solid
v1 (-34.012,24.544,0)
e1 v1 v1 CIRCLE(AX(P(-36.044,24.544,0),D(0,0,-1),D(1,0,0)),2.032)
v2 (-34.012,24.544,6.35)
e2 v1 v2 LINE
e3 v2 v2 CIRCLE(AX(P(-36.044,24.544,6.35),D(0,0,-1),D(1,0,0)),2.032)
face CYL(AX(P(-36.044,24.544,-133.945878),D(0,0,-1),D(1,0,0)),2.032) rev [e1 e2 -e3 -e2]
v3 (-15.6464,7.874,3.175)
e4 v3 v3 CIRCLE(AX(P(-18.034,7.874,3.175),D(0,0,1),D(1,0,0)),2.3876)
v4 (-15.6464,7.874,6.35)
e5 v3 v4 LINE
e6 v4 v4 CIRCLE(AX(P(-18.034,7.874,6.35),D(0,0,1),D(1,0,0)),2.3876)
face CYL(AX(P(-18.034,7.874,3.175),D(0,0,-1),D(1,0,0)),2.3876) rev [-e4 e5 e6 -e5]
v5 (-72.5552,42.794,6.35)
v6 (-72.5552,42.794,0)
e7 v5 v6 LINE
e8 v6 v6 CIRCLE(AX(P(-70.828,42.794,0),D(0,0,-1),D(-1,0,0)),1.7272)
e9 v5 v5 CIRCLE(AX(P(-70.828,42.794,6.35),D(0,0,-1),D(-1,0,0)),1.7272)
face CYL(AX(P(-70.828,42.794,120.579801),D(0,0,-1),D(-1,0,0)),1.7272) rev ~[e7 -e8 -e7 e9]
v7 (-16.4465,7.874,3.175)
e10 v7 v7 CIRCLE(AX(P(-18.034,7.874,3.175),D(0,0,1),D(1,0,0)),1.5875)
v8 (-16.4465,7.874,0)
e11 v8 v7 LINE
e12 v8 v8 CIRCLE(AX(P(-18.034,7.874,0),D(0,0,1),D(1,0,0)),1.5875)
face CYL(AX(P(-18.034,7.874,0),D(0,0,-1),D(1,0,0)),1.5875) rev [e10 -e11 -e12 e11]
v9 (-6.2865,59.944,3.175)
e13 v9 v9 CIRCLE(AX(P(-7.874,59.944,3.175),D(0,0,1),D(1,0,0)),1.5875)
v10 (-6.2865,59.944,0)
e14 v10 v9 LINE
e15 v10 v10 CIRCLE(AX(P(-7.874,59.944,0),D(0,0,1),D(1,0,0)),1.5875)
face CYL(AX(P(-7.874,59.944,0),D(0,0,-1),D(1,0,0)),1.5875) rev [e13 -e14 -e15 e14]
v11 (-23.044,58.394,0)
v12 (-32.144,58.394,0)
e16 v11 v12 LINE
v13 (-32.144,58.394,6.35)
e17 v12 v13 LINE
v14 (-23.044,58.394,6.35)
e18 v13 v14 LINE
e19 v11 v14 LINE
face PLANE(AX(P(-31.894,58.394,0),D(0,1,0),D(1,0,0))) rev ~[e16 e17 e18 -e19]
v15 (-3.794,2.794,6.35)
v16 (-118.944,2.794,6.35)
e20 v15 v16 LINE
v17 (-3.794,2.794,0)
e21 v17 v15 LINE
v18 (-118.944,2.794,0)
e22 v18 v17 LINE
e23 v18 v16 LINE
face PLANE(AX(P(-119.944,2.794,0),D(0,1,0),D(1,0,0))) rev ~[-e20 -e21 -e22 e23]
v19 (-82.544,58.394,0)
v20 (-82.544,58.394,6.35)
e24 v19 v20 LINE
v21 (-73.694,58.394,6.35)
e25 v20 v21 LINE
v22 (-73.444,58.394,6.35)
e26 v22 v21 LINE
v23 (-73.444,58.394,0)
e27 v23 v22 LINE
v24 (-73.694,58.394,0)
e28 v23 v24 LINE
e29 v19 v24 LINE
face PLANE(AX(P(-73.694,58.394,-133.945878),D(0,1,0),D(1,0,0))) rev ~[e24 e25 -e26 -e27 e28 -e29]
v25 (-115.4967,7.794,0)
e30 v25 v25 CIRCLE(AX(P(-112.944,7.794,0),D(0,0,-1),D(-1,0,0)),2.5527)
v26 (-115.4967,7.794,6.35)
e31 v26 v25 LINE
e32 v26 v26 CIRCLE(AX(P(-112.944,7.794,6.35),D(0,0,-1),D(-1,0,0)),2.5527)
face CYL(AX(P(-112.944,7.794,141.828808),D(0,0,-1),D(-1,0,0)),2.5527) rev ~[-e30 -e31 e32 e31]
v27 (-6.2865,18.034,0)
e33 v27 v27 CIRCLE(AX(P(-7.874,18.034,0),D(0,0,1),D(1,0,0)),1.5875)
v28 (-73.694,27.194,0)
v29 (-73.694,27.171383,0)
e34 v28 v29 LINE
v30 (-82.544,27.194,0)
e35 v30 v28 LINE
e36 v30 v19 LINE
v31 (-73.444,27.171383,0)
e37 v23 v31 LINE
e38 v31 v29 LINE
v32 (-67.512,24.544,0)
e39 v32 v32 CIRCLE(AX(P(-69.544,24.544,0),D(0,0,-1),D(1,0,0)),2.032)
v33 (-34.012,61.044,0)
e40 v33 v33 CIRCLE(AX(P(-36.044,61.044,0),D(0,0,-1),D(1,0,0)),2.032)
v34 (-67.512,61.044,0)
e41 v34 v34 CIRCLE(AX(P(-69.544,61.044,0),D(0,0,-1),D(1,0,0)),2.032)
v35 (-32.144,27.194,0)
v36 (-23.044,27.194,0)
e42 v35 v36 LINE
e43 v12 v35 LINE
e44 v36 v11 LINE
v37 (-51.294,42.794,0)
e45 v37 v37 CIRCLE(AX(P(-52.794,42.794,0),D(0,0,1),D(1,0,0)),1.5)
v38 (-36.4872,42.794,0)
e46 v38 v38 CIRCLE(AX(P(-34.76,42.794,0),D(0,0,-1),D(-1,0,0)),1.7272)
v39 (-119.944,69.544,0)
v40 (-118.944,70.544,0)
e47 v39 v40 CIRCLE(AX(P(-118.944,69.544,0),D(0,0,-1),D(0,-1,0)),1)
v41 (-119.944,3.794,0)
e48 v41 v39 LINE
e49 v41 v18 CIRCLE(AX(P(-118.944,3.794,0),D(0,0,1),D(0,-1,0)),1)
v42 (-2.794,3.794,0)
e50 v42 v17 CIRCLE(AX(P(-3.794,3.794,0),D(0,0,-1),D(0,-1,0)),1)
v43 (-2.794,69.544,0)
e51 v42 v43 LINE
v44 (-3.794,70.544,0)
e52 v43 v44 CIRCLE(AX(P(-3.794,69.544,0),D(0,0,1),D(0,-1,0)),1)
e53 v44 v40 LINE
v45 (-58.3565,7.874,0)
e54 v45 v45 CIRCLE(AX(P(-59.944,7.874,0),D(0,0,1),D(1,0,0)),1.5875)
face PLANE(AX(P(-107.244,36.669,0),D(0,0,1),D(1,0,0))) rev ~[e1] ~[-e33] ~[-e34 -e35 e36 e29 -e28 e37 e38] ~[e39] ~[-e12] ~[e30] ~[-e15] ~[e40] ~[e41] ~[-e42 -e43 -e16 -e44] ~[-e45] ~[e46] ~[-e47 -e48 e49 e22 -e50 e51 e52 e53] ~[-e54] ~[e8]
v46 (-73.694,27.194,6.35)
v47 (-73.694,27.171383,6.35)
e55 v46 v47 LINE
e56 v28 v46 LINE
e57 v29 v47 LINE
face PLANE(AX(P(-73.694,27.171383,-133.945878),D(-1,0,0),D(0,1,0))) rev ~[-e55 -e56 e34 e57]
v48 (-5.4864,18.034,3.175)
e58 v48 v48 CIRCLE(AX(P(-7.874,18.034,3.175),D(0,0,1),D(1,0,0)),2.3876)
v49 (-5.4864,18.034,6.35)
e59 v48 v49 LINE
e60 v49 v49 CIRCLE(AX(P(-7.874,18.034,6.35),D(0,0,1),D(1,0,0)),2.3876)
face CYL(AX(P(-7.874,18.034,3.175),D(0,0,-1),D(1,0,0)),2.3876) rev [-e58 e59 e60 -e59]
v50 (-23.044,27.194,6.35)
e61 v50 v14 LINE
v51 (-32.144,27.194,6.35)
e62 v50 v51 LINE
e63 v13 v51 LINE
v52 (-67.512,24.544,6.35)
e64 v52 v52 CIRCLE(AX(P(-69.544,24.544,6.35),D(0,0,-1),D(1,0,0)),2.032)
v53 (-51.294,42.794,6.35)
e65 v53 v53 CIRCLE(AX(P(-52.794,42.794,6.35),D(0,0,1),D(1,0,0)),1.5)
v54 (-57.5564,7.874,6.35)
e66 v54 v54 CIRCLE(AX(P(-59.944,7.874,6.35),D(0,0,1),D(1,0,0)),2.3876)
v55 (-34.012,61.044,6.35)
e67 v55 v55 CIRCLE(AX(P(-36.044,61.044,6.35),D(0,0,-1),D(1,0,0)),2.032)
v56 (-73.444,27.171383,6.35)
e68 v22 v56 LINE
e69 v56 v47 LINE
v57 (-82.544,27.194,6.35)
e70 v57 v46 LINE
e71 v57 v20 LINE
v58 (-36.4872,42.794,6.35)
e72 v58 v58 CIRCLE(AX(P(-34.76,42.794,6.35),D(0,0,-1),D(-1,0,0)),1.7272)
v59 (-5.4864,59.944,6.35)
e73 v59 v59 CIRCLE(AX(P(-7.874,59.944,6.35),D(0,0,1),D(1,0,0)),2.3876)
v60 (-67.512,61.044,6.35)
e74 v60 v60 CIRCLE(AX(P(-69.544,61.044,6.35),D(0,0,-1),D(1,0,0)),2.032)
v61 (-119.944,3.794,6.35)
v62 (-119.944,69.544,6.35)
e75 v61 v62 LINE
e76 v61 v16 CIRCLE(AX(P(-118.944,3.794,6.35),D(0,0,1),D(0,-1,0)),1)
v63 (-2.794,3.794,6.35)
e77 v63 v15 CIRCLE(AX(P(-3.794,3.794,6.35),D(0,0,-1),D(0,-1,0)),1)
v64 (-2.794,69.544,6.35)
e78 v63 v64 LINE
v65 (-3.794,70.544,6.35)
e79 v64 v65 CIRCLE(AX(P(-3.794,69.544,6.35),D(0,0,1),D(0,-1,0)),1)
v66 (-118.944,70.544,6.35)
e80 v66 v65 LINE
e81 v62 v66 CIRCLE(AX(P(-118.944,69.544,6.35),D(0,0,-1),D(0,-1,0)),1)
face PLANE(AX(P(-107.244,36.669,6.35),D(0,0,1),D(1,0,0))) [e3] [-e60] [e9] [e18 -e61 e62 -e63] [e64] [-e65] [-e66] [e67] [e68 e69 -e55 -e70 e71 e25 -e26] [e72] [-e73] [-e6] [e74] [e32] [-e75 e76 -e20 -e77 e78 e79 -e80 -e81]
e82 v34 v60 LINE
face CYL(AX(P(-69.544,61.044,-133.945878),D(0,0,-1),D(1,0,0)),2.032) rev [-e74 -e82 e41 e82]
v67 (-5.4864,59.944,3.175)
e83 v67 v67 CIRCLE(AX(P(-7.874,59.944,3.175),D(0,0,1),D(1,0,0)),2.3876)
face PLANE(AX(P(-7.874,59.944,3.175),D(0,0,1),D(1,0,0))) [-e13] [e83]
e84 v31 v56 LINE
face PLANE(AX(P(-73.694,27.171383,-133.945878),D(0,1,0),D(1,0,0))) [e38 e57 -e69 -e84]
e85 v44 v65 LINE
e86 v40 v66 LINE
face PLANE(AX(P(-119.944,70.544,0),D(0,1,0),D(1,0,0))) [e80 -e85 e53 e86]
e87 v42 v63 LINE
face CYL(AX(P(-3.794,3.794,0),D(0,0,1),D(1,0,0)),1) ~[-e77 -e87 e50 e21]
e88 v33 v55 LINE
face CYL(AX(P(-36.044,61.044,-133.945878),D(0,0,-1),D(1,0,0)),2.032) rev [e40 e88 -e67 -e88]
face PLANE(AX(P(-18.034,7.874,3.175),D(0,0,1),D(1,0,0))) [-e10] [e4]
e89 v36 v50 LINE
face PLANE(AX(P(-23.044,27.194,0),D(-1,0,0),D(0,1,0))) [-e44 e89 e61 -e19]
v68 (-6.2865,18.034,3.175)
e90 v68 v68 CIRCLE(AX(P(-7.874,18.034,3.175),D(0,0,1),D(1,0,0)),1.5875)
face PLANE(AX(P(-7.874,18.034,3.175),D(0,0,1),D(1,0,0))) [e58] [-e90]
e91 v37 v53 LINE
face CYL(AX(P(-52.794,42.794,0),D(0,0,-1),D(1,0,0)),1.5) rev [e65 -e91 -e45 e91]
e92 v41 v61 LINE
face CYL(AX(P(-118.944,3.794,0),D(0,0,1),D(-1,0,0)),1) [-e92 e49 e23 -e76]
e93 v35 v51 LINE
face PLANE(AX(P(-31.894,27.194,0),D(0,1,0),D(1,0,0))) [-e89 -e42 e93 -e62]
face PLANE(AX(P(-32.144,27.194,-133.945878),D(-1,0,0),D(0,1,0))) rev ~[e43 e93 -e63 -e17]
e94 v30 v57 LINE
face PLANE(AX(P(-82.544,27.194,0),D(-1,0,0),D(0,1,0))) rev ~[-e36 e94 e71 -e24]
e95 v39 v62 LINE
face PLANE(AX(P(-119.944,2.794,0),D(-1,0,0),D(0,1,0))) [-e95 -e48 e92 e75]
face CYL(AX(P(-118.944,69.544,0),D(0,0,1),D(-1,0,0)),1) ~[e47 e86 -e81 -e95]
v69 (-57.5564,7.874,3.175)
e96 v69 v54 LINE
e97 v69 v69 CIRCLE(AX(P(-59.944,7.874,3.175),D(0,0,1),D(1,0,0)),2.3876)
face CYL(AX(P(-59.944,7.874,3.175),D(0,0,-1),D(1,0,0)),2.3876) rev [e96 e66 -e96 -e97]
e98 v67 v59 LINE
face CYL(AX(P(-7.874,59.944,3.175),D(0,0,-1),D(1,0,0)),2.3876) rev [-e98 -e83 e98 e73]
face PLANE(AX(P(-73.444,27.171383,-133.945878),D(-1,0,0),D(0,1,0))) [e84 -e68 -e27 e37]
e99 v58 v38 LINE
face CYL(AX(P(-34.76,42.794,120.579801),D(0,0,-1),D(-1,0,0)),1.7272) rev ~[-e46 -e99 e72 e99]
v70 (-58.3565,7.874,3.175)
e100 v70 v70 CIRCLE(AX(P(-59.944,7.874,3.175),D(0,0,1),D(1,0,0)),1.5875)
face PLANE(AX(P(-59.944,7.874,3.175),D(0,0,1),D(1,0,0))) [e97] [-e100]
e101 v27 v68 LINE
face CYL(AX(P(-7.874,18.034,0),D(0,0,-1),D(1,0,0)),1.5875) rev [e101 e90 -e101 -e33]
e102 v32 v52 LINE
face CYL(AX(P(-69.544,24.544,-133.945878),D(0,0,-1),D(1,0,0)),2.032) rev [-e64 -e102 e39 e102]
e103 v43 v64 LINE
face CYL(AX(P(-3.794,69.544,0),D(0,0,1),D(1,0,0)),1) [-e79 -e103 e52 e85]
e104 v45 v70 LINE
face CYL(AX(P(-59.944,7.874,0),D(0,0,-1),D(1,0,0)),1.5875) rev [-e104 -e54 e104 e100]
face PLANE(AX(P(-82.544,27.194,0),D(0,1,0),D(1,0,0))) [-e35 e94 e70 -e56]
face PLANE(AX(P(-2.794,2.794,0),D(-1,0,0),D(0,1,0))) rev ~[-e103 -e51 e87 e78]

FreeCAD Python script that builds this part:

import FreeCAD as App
import Part
import Sketcher

V = App.Vector
Q = App.Units.Quantity


def edges_at(feature, points):
    """Names of the edges that pass closest to the given points."""
    edges = feature.Shape.Edges
    near = lambda p: min(range(len(edges)), key=lambda i: edges[i].distToShape(Part.Vertex(*p))[0])
    return sorted({f"Edge{near(p) + 1}" for p in points})


def add_polygon(sketch, points):
    """Adds a closed chain of lines whose ends are joined by coincident constraints."""
    first, n = sketch.GeometryCount, len(points)
    for a, b in zip(points, points[1:] + points[:1]):
        sketch.addGeometry(Part.LineSegment(App.Vector(*a, 0), App.Vector(*b, 0)), False)
    for i in range(n):
        sketch.addConstraint(Sketcher.Constraint("Coincident", first + i, 2, first + (i + 1) % n, 1))

doc = App.newDocument("Part")
params = doc.addObject("Spreadsheet::Sheet", "Params")
for row, (alias, value) in enumerate([
    ("sketch1_diameter", "0.125 in"),
    ("pad1_length", "0.25 in"),
    ("sketch2_diameter", "0.136 in"),
    ("hole_diameter", "0.136 in"),
    ("sketch3_diameter", "0.188 in"),
    ("sketch3_diameter2", "0.125 in"),
    ("pocket1_length", "0.125 in"),
    ("sketch4_width", "1 in"),
    ("pad2_length", "0.25 in"),
    ("sketch5_diameter", "0.201 in"),
    ("hole2_diameter", "0.201 in"),
    ("sketch6_diameter", "0.16 in"),
    ("fillet_radius", "1 mm"),
], start=1):
    params.set(f"A{row}", alias)
    params.set(f"B{row}", "=" + value)
    params.setAlias(f"B{row}", alias)

body = doc.addObject("PartDesign::Body", "Body")

sketch1 = body.newObject("Sketcher::SketchObject", "Sketch")
sketch1.AttachmentSupport = (doc.getObject("XY_Plane"), [""])
sketch1.MapMode = "FlatFace"
add_polygon(sketch1, [(-94.5, 70.5), (-94.5, 2.8), (-2.8, 2.8), (-2.8, 70.5)])
add_polygon(sketch1, [(-73.7, 27.2), (-82.5, 27.2), (-82.5, 58.4), (-73.7, 58.4)])
sketch1.addGeometry(Part.Circle(V(-52.8, 42.8, 0), V(0, 0, 1), 1.5), False)
add_polygon(sketch1, [(-23, 27.2), (-31.9, 27.2), (-31.9, 58.4), (-23, 58.4)])
sketch1.addGeometry(Part.Circle(V(-59.9, 7.9, 0), V(0, 0, 1), 1.6), False)
sketch1.addGeometry(Part.Circle(V(-18, 7.9, 0), V(0, 0, 1), 1.6), False)
sketch1.addGeometry(Part.Circle(V(-7.9, 18, 0), V(0, 0, 1), 1.6), False)
sketch1.addGeometry(Part.Circle(V(-7.9, 59.9, 0), V(0, 0, 1), 1.6), False)
sketch1.addConstraint([
    Sketcher.Constraint("Vertical", 0),
    Sketcher.Constraint("Horizontal", 1),
    Sketcher.Constraint("Vertical", 2),
    Sketcher.Constraint("Horizontal", 3),
    Sketcher.Constraint("Horizontal", 4),
    Sketcher.Constraint("Vertical", 5),
    Sketcher.Constraint("Horizontal", 6),
    Sketcher.Constraint("Vertical", 7),
    Sketcher.Constraint("Horizontal", 9),
    Sketcher.Constraint("Vertical", 10),
    Sketcher.Constraint("Horizontal", 11),
    Sketcher.Constraint("Vertical", 12),
    Sketcher.Constraint("Equal", 13, 14),
    Sketcher.Constraint("Equal", 14, 15),
    Sketcher.Constraint("Equal", 15, 16),
    Sketcher.Constraint("Horizontal", 13, 3, 14, 3),
    Sketcher.Constraint("Horizontal", 7, 2, 9, 2),
    Sketcher.Constraint("Horizontal", 6, 2, 10, 2),
    Sketcher.Constraint("Vertical", 15, 3, 16, 3),
    Sketcher.Constraint("Equal", 6, 9),
    Sketcher.Constraint("Diameter", 13, Q("0.125 in")),
    Sketcher.Constraint("DistanceX", 14, 3, 15, 3, Q("0.4 in")),
    Sketcher.Constraint("DistanceY", 14, 3, 15, 3, Q("0.4 in")),
    Sketcher.Constraint("DistanceY", 0, 2, 13, 3, Q("0.2 in")),
    Sketcher.Constraint("DistanceX", 14, 3, 1, 2, Q("0.6 in")),
    Sketcher.Constraint("Diameter", 8, 3.0),
    Sketcher.Constraint("DistanceX", 13, 3, -1, 1, Q("2.36 in")),
    Sketcher.Constraint("DistanceY", -1, 1, 13, 3, Q("0.31 in")),
    Sketcher.Constraint("DistanceX", 14, 3, -1, 1, Q("0.71 in")),
    Sketcher.Constraint("DistanceY", -1, 1, 16, 3, Q("2.36 in")),
    Sketcher.Constraint("DistanceX", 1, 1, 1, 2, 91.75),
    Sketcher.Constraint("DistanceX", 4, 2, 4, 1, 8.85),
    Sketcher.Constraint("DistanceY", 0, 2, 0, 1, 67.75),
    Sketcher.Constraint("DistanceY", 5, 1, 5, 2, 31.2),
    Sketcher.Constraint("DistanceX", 8, 3, -1, 1, 52.794),
    Sketcher.Constraint("DistanceY", -1, 1, 8, 3, 42.794),
    Sketcher.Constraint("DistanceX", 4, 2, -1, 1, 82.544),
    Sketcher.Constraint("DistanceY", -1, 1, 4, 2, 27.194),
    Sketcher.Constraint("DistanceX", 9, 2, -1, 1, 31.894),
])
sketch1.setExpression("Constraints[32]", "Params.sketch1_diameter")
pad1 = body.newObject("PartDesign::Pad", "Pad")
pad1.Profile = sketch1
pad1.setExpression("Length", "Params.pad1_length")

sketch2 = body.newObject("Sketcher::SketchObject", "Sketch001")
sketch2.AttachmentSupport = (doc.getObject("XY_Plane"), [""])
sketch2.MapMode = "FlatFace"
sketch2.AttachmentOffset = App.Placement(V(0, 0, 0.25 * 25.4), App.Rotation())
sketch2.addGeometry([
    Part.Circle(V(-70.8, 42.8, 0), V(0, 0, 1), 1.7),
    Part.Circle(V(-34.8, 42.8, 0), V(0, 0, 1), 1.7),
], False)
sketch2.addConstraint([
    Sketcher.Constraint("Equal", 0, 1),
    Sketcher.Constraint("Horizontal", 0, 3, 1, 3),
    Sketcher.Constraint("Diameter", 0, Q("0.136 in")),
    Sketcher.Constraint("DistanceX", 0, 3, 1, 3, Q("1.42 in")),
    Sketcher.Constraint("DistanceX", 0, 3, -1, 1, 70.828),
    Sketcher.Constraint("DistanceY", -1, 1, 0, 3, 42.794),
])
sketch2.setExpression("Constraints[2]", "Params.sketch2_diameter")
doc.recompute()
hole = body.newObject("PartDesign::Hole", "Hole")
hole.Profile = sketch2
hole.ThreadType = "None"
hole.setExpression("Diameter", "Params.hole_diameter")
hole.DepthType = "ThroughAll"

sketch3 = body.newObject("Sketcher::SketchObject", "Sketch002")
sketch3.AttachmentSupport = (doc.getObject("XY_Plane"), [""])
sketch3.MapMode = "FlatFace"
sketch3.AttachmentOffset = App.Placement(V(0, 0, 0.125 * 25.4), App.Rotation())
sketch3.addGeometry([
    Part.Circle(V(-18, 7.9, 0), V(0, 0, 1), 2.4),
    Part.Circle(V(-18, 7.9, 0), V(0, 0, 1), 1.6),
    Part.Circle(V(-7.9, 18, 0), V(0, 0, 1), 2.4),
    Part.Circle(V(-7.9, 18, 0), V(0, 0, 1), 1.6),
    Part.Circle(V(-59.9, 7.9, 0), V(0, 0, 1), 2.4),
    Part.Circle(V(-59.9, 7.9, 0), V(0, 0, 1), 1.6),
    Part.Circle(V(-7.9, 59.9, 0), V(0, 0, 1), 2.4),
    Part.Circle(V(-7.9, 59.9, 0), V(0, 0, 1), 1.6),
], False)
sketch3.addConstraint([
    Sketcher.Constraint("Coincident", 1, 3, 0, 3),
    Sketcher.Constraint("Coincident", 3, 3, 2, 3),
    Sketcher.Constraint("Coincident", 5, 3, 4, 3),
    Sketcher.Constraint("Coincident", 7, 3, 6, 3),
    Sketcher.Constraint("Equal", 0, 2),
    Sketcher.Constraint("Equal", 1, 3),
    Sketcher.Constraint("Equal", 2, 4),
    Sketcher.Constraint("Equal", 3, 5),
    Sketcher.Constraint("Equal", 4, 6),
    Sketcher.Constraint("Equal", 5, 7),
    Sketcher.Constraint("Horizontal", 1, 3, 4, 3),
    Sketcher.Constraint("Vertical", 3, 3, 6, 3),
    Sketcher.Constraint("Diameter", 0, Q("0.188 in")),
    Sketcher.Constraint("Diameter", 1, Q("0.125 in")),
    Sketcher.Constraint("DistanceX", 0, 3, 2, 3, Q("0.4 in")),
    Sketcher.Constraint("DistanceY", 0, 3, 2, 3, Q("0.4 in")),
    Sketcher.Constraint("DistanceX", 0, 3, -1, 1, Q("0.71 in")),
    Sketcher.Constraint("DistanceY", -1, 1, 0, 3, Q("0.31 in")),
    Sketcher.Constraint("DistanceX", 4, 3, -1, 1, Q("2.36 in")),
    Sketcher.Constraint("DistanceY", -1, 1, 6, 3, Q("2.36 in")),
])
sketch3.setExpression("Constraints[12]", "Params.sketch3_diameter")
sketch3.setExpression("Constraints[13]", "Params.sketch3_diameter2")
pocket1 = body.newObject("PartDesign::Pocket", "Pocket")
pocket1.Profile = sketch3
pocket1.setExpression("Length", "Params.pocket1_length")
pocket1.Reversed = True

sketch4 = body.newObject("Sketcher::SketchObject", "Sketch003")
sketch4.AttachmentSupport = (doc.getObject("XY_Plane"), [""])
sketch4.MapMode = "FlatFace"
add_polygon(sketch4, [(-119.9, 70.5), (-119.9, 2.8), (-94.5, 2.8), (-94.5, 70.5)])
sketch4.addGeometry(Part.Circle(V(-112.9, 7.8, 0), V(0, 0, 1), 1), False)
sketch4.addConstraint([
    Sketcher.Constraint("Vertical", 0),
    Sketcher.Constraint("Horizontal", 1),
    Sketcher.Constraint("Vertical", 2),
    Sketcher.Constraint("Horizontal", 3),
    Sketcher.Constraint("DistanceX", 1, 1, 1, 2, Q("1 in")),
    Sketcher.Constraint("Diameter", 4, 2.0),
    Sketcher.Constraint("DistanceY", -1, 1, 0, 2, Q("0.11 in")),
    Sketcher.Constraint("DistanceY", 0, 2, 0, 1, 67.75),
    Sketcher.Constraint("DistanceX", 4, 3, -1, 1, 112.944),
    Sketcher.Constraint("DistanceY", -1, 1, 4, 3, 7.794),
    Sketcher.Constraint("DistanceX", 0, 2, -1, 1, 119.944),
])
sketch4.setExpression("Constraints[8]", "Params.sketch4_width")
pad2 = body.newObject("PartDesign::Pad", "Pad001")
pad2.Profile = sketch4
pad2.setExpression("Length", "Params.pad2_length")

sketch5 = body.newObject("Sketcher::SketchObject", "Sketch004")
sketch5.AttachmentSupport = (doc.getObject("XY_Plane"), [""])
sketch5.MapMode = "FlatFace"
sketch5.AttachmentOffset = App.Placement(V(0, 0, 0.25 * 25.4), App.Rotation())
sketch5.addGeometry(Part.Circle(V(-112.9, 7.8, 0), V(0, 0, 1), 2.6), False)
sketch5.addConstraint([
    Sketcher.Constraint("Diameter", 0, Q("0.201 in")),
    Sketcher.Constraint("DistanceX", 0, 3, -1, 1, 112.944),
    Sketcher.Constraint("DistanceY", -1, 1, 0, 3, 7.794),
])
sketch5.setExpression("Constraints[0]", "Params.sketch5_diameter")
doc.recompute()
hole2 = body.newObject("PartDesign::Hole", "Hole001")
hole2.Profile = sketch5
hole2.ThreadType = "None"
hole2.setExpression("Diameter", "Params.hole2_diameter")
hole2.DepthType = "ThroughAll"

sketch6 = body.newObject("Sketcher::SketchObject", "Sketch005")
sketch6.AttachmentSupport = (doc.getObject("XY_Plane"), [""])
sketch6.MapMode = "FlatFace"
sketch6.AttachmentOffset = App.Placement(V(0, 0, 0.25 * 25.4), App.Rotation())
sketch6.addGeometry([
    Part.Circle(V(-69.5, 61, 0), V(0, 0, 1), 2),
    Part.Circle(V(-36, 61, 0), V(0, 0, 1), 2),
    Part.Circle(V(-36, 24.5, 0), V(0, 0, 1), 2),
    Part.Circle(V(-69.5, 24.5, 0), V(0, 0, 1), 2),
], False)
sketch6.addConstraint([
    Sketcher.Constraint("Equal", 0, 1),
    Sketcher.Constraint("Equal", 1, 2),
    Sketcher.Constraint("Equal", 2, 3),
    Sketcher.Constraint("Horizontal", 0, 3, 1, 3),
    Sketcher.Constraint("Horizontal", 2, 3, 3, 3),
    Sketcher.Constraint("Vertical", 1, 3, 2, 3),
    Sketcher.Constraint("Vertical", 0, 3, 3, 3),
    Sketcher.Constraint("Diameter", 0, Q("0.16 in")),
    Sketcher.Constraint("DistanceX", 0, 3, -1, 1, 69.544),
    Sketcher.Constraint("DistanceY", -1, 1, 0, 3, 61.044),
    Sketcher.Constraint("DistanceX", 1, 3, -1, 1, 36.044),
    Sketcher.Constraint("DistanceY", -1, 1, 2, 3, 24.544),
])
sketch6.setExpression("Constraints[7]", "Params.sketch6_diameter")
pocket2 = body.newObject("PartDesign::Pocket", "Pocket001")
pocket2.Profile = sketch6
pocket2.Type = "ThroughAll"
pocket2.Midplane = True

sketch7 = body.newObject("Sketcher::SketchObject", "Sketch006")
sketch7.AttachmentSupport = (doc.getObject("XY_Plane"), [""])
sketch7.MapMode = "FlatFace"
sketch7.AttachmentOffset = App.Placement(V(0, 0, 0.25 * 25.4), App.Rotation())
add_polygon(sketch7, [(-32.14, 58.39), (-32.14, 27.19), (-31.89, 27.19), (-31.89, 58.39)])
add_polygon(sketch7, [(-73.69, 58.39), (-73.69, 27.17), (-73.44, 27.17), (-73.44, 58.39)])
sketch7.addConstraint([
    Sketcher.Constraint("Vertical", 0),
    Sketcher.Constraint("Horizontal", 1),
    Sketcher.Constraint("Vertical", 2),
    Sketcher.Constraint("Horizontal", 3),
    Sketcher.Constraint("Vertical", 4),
    Sketcher.Constraint("Horizontal", 5),
    Sketcher.Constraint("Vertical", 6),
    Sketcher.Constraint("Horizontal", 7),
    Sketcher.Constraint("Horizontal", 3, 2, 6, 2),
    Sketcher.Constraint("Equal", 3, 5),
    Sketcher.Constraint("DistanceX", 1, 1, 1, 2, 0.25),
    Sketcher.Constraint("DistanceY", 0, 2, 0, 1, 31.2),
    Sketcher.Constraint("DistanceX", 0, 2, -1, 1, 32.144),
    Sketcher.Constraint("DistanceY", -1, 1, 0, 2, 27.194),
    Sketcher.Constraint("DistanceX", 4, 2, -1, 1, 73.694),
    Sketcher.Constraint("DistanceY", 4, 2, 4, 1, 31.222617),
])
pocket3 = body.newObject("PartDesign::Pocket", "Pocket002")
pocket3.Profile = sketch7
pocket3.Type = "ThroughAll"
pocket3.Midplane = True
doc.recompute()

fillet = body.newObject("PartDesign::Fillet", "Fillet")
fillet.Base = (pocket3, edges_at(pocket3, [
    (-119.944, 70.544, 3.175),
    (-2.794, 2.794, 3.175),
    (-2.794, 70.544, 3.175),
    (-119.944, 2.794, 3.175),
]))
fillet.setExpression("Radius", "Params.fillet_radius")

doc.recompute()
